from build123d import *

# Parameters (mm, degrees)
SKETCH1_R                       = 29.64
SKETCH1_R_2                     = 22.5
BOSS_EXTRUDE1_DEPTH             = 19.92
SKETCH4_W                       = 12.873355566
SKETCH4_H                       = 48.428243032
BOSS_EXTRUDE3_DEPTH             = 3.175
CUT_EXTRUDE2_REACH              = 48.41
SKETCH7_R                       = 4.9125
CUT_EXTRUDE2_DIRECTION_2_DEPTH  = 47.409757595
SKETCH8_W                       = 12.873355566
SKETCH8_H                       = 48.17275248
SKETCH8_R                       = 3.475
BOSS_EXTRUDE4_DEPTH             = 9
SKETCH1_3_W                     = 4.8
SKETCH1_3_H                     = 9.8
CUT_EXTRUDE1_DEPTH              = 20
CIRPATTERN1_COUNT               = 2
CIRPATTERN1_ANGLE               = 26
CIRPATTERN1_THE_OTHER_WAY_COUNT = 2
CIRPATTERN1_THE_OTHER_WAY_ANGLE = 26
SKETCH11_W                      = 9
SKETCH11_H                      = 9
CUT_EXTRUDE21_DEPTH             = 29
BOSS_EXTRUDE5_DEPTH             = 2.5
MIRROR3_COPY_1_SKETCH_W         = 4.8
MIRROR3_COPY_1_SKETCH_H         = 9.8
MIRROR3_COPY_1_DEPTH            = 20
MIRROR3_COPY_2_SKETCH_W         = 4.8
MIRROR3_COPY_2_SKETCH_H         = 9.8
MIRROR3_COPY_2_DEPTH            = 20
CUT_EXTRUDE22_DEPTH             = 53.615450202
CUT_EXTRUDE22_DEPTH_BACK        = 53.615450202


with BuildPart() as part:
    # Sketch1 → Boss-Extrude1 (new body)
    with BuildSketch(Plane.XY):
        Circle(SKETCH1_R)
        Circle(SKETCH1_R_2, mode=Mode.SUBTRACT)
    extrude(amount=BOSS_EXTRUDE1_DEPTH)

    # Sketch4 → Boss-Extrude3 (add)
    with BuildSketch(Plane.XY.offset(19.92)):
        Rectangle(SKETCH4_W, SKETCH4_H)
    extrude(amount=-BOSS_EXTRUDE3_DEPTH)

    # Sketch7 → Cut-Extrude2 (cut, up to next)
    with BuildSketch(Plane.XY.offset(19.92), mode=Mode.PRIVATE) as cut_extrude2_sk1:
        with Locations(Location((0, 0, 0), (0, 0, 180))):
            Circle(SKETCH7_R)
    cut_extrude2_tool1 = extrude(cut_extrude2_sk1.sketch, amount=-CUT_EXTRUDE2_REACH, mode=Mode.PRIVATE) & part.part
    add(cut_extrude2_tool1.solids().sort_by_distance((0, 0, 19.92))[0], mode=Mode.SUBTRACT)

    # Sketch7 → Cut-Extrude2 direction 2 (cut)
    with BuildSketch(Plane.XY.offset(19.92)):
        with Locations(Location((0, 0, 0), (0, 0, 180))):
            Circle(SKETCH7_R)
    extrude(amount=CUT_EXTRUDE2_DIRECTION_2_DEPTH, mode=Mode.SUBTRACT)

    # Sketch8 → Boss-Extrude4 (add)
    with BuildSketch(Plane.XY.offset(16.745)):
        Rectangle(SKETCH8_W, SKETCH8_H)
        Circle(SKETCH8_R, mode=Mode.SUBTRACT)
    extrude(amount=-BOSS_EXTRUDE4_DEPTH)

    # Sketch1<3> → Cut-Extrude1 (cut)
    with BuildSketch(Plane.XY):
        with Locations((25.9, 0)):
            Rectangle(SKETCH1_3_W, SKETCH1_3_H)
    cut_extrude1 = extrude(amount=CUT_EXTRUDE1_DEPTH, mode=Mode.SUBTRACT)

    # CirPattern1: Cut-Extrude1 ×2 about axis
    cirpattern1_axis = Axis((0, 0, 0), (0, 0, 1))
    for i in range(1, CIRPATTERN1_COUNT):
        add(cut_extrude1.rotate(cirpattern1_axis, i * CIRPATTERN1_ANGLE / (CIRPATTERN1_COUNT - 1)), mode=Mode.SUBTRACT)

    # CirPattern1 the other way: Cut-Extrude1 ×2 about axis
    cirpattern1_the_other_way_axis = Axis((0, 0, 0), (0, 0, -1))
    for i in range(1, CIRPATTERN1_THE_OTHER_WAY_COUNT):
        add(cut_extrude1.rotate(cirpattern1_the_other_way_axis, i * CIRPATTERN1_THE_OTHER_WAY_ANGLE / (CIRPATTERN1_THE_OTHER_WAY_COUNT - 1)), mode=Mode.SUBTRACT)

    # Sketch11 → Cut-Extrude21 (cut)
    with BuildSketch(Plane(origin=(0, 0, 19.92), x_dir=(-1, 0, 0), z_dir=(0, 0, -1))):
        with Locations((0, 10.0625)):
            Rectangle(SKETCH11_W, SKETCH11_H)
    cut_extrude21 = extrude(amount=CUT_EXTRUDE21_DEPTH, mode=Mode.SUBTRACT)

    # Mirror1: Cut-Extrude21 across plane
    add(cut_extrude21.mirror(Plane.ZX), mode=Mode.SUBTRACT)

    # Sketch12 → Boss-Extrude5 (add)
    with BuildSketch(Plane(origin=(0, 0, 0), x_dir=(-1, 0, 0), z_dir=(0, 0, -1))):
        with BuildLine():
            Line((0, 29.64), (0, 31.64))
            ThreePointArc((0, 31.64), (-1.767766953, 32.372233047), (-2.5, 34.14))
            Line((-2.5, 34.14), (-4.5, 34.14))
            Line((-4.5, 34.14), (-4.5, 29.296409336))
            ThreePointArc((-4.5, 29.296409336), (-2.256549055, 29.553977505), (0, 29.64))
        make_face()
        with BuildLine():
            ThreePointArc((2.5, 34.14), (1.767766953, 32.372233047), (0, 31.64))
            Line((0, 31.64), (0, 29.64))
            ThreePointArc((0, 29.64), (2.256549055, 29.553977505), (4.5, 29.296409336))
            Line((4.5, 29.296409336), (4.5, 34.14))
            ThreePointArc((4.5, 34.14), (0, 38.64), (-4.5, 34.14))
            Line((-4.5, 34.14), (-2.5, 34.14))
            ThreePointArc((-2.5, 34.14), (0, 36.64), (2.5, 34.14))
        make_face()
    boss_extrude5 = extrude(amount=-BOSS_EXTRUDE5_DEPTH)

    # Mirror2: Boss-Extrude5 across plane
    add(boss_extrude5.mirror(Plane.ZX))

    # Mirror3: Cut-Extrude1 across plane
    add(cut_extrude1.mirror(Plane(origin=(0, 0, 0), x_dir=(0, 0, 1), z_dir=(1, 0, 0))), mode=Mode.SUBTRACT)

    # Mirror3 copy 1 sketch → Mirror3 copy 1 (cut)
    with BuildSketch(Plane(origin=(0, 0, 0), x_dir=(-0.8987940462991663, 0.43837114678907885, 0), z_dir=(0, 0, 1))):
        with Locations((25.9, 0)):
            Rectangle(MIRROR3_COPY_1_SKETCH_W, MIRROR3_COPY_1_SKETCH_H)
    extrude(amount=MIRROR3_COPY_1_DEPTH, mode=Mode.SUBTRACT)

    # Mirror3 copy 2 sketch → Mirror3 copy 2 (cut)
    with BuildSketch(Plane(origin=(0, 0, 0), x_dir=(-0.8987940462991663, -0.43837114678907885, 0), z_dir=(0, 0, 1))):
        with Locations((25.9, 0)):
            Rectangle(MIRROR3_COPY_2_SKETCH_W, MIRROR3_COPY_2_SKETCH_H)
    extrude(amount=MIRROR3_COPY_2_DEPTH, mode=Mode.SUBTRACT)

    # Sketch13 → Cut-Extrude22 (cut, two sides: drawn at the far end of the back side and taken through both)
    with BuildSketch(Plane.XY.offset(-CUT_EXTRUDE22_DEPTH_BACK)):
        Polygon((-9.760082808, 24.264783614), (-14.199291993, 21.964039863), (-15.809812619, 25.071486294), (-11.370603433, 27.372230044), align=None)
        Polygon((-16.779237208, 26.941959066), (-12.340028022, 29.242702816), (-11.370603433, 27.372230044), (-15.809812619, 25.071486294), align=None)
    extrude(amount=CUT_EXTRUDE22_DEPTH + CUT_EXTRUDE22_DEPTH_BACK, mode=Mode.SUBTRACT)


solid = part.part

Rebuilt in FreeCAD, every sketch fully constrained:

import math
import FreeCAD as App
import Part
import Sketcher

V = App.Vector
Q = App.Units.Quantity

doc = App.newDocument("Part")
params = doc.addObject("Spreadsheet::Sheet", "Params")
for row, (alias, value) in enumerate([
    ("sketch1_diameter", "45 mm"),
    ("sketch1_diameter2", "59.28 mm"),
    ("pad1_length", "19.92 mm"),
    ("pad2_length", "3.175 mm"),
    ("pocket2_length", "47.409758 mm"),
    ("sketch5_diameter", "6.95 mm"),
    ("pad3_length", "9 mm"),
    ("sketch6_width", "4.8 mm"),
    ("sketch6_height", "9.8 mm"),
    ("pocket3_length", "20 mm"),
    ("sketch7_width", "9 mm"),
    ("pocket4_length", "29 mm"),
    ("sketch8_radius", "4.5 mm"),
    ("sketch8_radius2", "2.5 mm"),
    ("sketch8_radius3", "29.64 mm"),
    ("pad4_length", "2.5 mm"),
    ("sketch9_length", "9.8 mm"),
    ("sketch9_length2", "4.8 mm"),
    ("pocket5_length", "20 mm"),
    ("sketch10_length", "9.8 mm"),
    ("sketch10_length2", "4.8 mm"),
    ("pocket6_length", "20 mm"),
    ("sketch11_length", "5 mm"),
    ("sketch11_length2", "3.5 mm"),
], start=1):
    params.set(f"A{row}", alias)
    params.set(f"B{row}", "=" + value)
    params.setAlias(f"B{row}", alias)

body = doc.addObject("PartDesign::Body", "Body")

# Sketch on XY plane
sketch1 = body.newObject("Sketcher::SketchObject", "Sketch")
sketch1.AttachmentSupport = (doc.getObject("XY_Plane"), [""])
sketch1.MapMode = "FlatFace"
sketch1.addGeometry(Part.Circle(V(0, 0, 0), V(0, 0, 1), 30), False)
sketch1.addGeometry(Part.Circle(V(0, 0, 0), V(0, 0, 1), 22), False)
sketch1.addConstraint(Sketcher.Constraint("Coincident", 0, 3, -1, 1))
sketch1.addConstraint(Sketcher.Constraint("Coincident", 1, 3, -1, 1))
sketch1.addConstraint(Sketcher.Constraint("Diameter", 1, Q("45 mm")))
sketch1.addConstraint(Sketcher.Constraint("Diameter", 0, Q("59.28 mm")))
sketch1.setExpression("Constraints[2]", "Params.sketch1_diameter")
sketch1.setExpression("Constraints[3]", "Params.sketch1_diameter2")
pad1 = body.newObject("PartDesign::Pad", "Pad")
pad1.Profile = sketch1
pad1.setExpression("Length", "Params.pad1_length")

# Sketch on XY plane
sketch2 = body.newObject("Sketcher::SketchObject", "Sketch001")
sketch2.AttachmentSupport = (doc.getObject("XY_Plane"), [""])
sketch2.MapMode = "FlatFace"
sketch2.AttachmentOffset = App.Placement(V(0, 0, 19.92), App.Rotation())
sketch2.addGeometry(Part.LineSegment(V(-6, 24, 0), V(-6, -24, 0)), False)
sketch2.addGeometry(Part.LineSegment(V(-6, -24, 0), V(6, -24, 0)), False)
sketch2.addGeometry(Part.LineSegment(V(6, -24, 0), V(6, 24, 0)), False)
sketch2.addGeometry(Part.LineSegment(V(6, 24, 0), V(-6, 24, 0)), False)
sketch2.addConstraint(Sketcher.Constraint("Coincident", 0, 2, 1, 1))
sketch2.addConstraint(Sketcher.Constraint("Coincident", 1, 2, 2, 1))
sketch2.addConstraint(Sketcher.Constraint("Coincident", 2, 2, 3, 1))
sketch2.addConstraint(Sketcher.Constraint("Coincident", 3, 2, 0, 1))
sketch2.addConstraint(Sketcher.Constraint("Vertical", 0))
sketch2.addConstraint(Sketcher.Constraint("Horizontal", 1))
sketch2.addConstraint(Sketcher.Constraint("Vertical", 2))
sketch2.addConstraint(Sketcher.Constraint("Horizontal", 3))
sketch2.addConstraint(Sketcher.Constraint("Symmetric", 0, 2, 2, 2, -1, 1))
sketch2.addConstraint(Sketcher.Constraint("DistanceX", 1, 1, 1, 2, Q("12.873356 mm")))
sketch2.addConstraint(Sketcher.Constraint("DistanceY", 0, 2, 0, 1, Q("48.428243 mm")))
pad2 = body.newObject("PartDesign::Pad", "Pad001")
pad2.Profile = sketch2
pad2.setExpression("Length", "Params.pad2_length")
pad2.Reversed = True

# Sketch on XY plane
sketch3 = body.newObject("Sketcher::SketchObject", "Sketch002")
sketch3.AttachmentSupport = (doc.getObject("XY_Plane"), [""])
sketch3.MapMode = "FlatFace"
sketch3.AttachmentOffset = App.Placement(V(0, 0, 19.92), App.Rotation())
sketch3.addGeometry(Part.Circle(V(0, 0, 0), V(0, 0, 1), 4.9), False)
sketch3.addConstraint(Sketcher.Constraint("Coincident", 0, 3, -1, 1))
sketch3.addConstraint(Sketcher.Constraint("Diameter", 0, Q("9.825 mm")))
pocket1 = body.newObject("PartDesign::Pocket", "Pocket")
pocket1.Profile = sketch3
pocket1.Type = "UpToFirst"

# Sketch on XY plane
sketch4 = body.newObject("Sketcher::SketchObject", "Sketch003")
sketch4.AttachmentSupport = (doc.getObject("XY_Plane"), [""])
sketch4.MapMode = "FlatFace"
sketch4.AttachmentOffset = App.Placement(V(0, 0, 19.92), App.Rotation())
sketch4.addGeometry(Part.Circle(V(0, 0, 0), V(0, 0, 1), 4.9), False)
sketch4.addConstraint(Sketcher.Constraint("Coincident", 0, 3, -1, 1))
sketch4.addConstraint(Sketcher.Constraint("Diameter", 0, Q("9.825 mm")))
pocket2 = body.newObject("PartDesign::Pocket", "Pocket001")
pocket2.Profile = sketch4
pocket2.setExpression("Length", "Params.pocket2_length")
pocket2.Reversed = True

# Sketch on XY plane
sketch5 = body.newObject("Sketcher::SketchObject", "Sketch004")
sketch5.AttachmentSupport = (doc.getObject("XY_Plane"), [""])
sketch5.MapMode = "FlatFace"
sketch5.AttachmentOffset = App.Placement(V(0, 0, 16.745), App.Rotation())
sketch5.addGeometry(Part.LineSegment(V(-6.4, 24.1, 0), V(-6.4, -24.1, 0)), False)
sketch5.addGeometry(Part.LineSegment(V(-6.4, -24.1, 0), V(6.4, -24.1, 0)), False)
sketch5.addGeometry(Part.LineSegment(V(6.4, -24.1, 0), V(6.4, 24.1, 0)), False)
sketch5.addGeometry(Part.LineSegment(V(6.4, 24.1, 0), V(-6.4, 24.1, 0)), False)
sketch5.addGeometry(Part.Circle(V(0, 0, 0), V(0, 0, 1), 3.5), False)
sketch5.addConstraint(Sketcher.Constraint("Coincident", 0, 2, 1, 1))
sketch5.addConstraint(Sketcher.Constraint("Coincident", 1, 2, 2, 1))
sketch5.addConstraint(Sketcher.Constraint("Coincident", 2, 2, 3, 1))
sketch5.addConstraint(Sketcher.Constraint("Coincident", 3, 2, 0, 1))
sketch5.addConstraint(Sketcher.Constraint("Vertical", 0))
sketch5.addConstraint(Sketcher.Constraint("Horizontal", 1))
sketch5.addConstraint(Sketcher.Constraint("Vertical", 2))
sketch5.addConstraint(Sketcher.Constraint("Horizontal", 3))
sketch5.addConstraint(Sketcher.Constraint("Coincident", 4, 3, -1, 1))
sketch5.addConstraint(Sketcher.Constraint("Symmetric", 0, 2, 2, 2, -1, 1))
sketch5.addConstraint(Sketcher.Constraint("Diameter", 4, Q("6.95 mm")))
sketch5.addConstraint(Sketcher.Constraint("DistanceX", 1, 1, 1, 2, Q("12.873356 mm")))
sketch5.addConstraint(Sketcher.Constraint("DistanceY", 0, 2, 0, 1, Q("48.172752 mm")))
sketch5.setExpression("Constraints[10]", "Params.sketch5_diameter")
pad3 = body.newObject("PartDesign::Pad", "Pad002")
pad3.Profile = sketch5
pad3.setExpression("Length", "Params.pad3_length")
pad3.Reversed = True

# Sketch on XY plane
sketch6 = body.newObject("Sketcher::SketchObject", "Sketch005")
sketch6.AttachmentSupport = (doc.getObject("XY_Plane"), [""])
sketch6.MapMode = "FlatFace"
sketch6.addGeometry(Part.LineSegment(V(23.5, 4.9, 0), V(23.5, -4.9, 0)), False)
sketch6.addGeometry(Part.LineSegment(V(23.5, -4.9, 0), V(28.3, -4.9, 0)), False)
sketch6.addGeometry(Part.LineSegment(V(28.3, -4.9, 0), V(28.3, 4.9, 0)), False)
sketch6.addGeometry(Part.LineSegment(V(28.3, 4.9, 0), V(23.5, 4.9, 0)), False)
sketch6.addConstraint(Sketcher.Constraint("Coincident", 0, 2, 1, 1))
sketch6.addConstraint(Sketcher.Constraint("Coincident", 1, 2, 2, 1))
sketch6.addConstraint(Sketcher.Constraint("Coincident", 2, 2, 3, 1))
sketch6.addConstraint(Sketcher.Constraint("Coincident", 3, 2, 0, 1))
sketch6.addConstraint(Sketcher.Constraint("Vertical", 0))
sketch6.addConstraint(Sketcher.Constraint("Horizontal", 1))
sketch6.addConstraint(Sketcher.Constraint("Vertical", 2))
sketch6.addConstraint(Sketcher.Constraint("Horizontal", 3))
sketch6.addConstraint(Sketcher.Constraint("DistanceX", 1, 1, 1, 2, Q("4.8 mm")))
sketch6.addConstraint(Sketcher.Constraint("DistanceY", 0, 2, 0, 1, Q("9.8 mm")))
sketch6.addConstraint(Sketcher.Constraint("DistanceX", -1, 1, 0, 2, Q("23.5 mm")))
sketch6.addConstraint(Sketcher.Constraint("DistanceY", 0, 2, -1, 1, Q("4.9 mm")))
sketch6.setExpression("Constraints[8]", "Params.sketch6_width")
sketch6.setExpression("Constraints[9]", "Params.sketch6_height")
pocket3 = body.newObject("PartDesign::Pocket", "Pocket002")
pocket3.Profile = sketch6
pocket3.setExpression("Length", "Params.pocket3_length")
pocket3.Reversed = True
doc.recompute()

polarpattern = body.newObject("PartDesign::PolarPattern", "PolarPattern")
polarpattern.Originals = [pocket3]
polarpattern.Axis = (doc.getObject("Z_Axis"), [""])
polarpattern.Angle = 26
polarpattern.Occurrences = 2
body.Tip = polarpattern
doc.recompute()

polarpattern2 = body.newObject("PartDesign::PolarPattern", "PolarPattern001")
polarpattern2.Originals = [pocket3]
polarpattern2.Axis = (doc.getObject("Z_Axis"), [""])
polarpattern2.Angle = 26
polarpattern2.Occurrences = 2
polarpattern2.Reversed = True
body.Tip = polarpattern2

# Sketch on XY plane
sketch7 = body.newObject("Sketcher::SketchObject", "Sketch006")
sketch7.AttachmentSupport = (doc.getObject("XY_Plane"), [""])
sketch7.MapMode = "FlatFace"
sketch7.AttachmentOffset = App.Placement(V(0, 0, 19.92), App.Rotation())
sketch7.addGeometry(Part.LineSegment(V(4, 15, 0), V(4, 6, 0)), False)
sketch7.addGeometry(Part.LineSegment(V(4, 6, 0), V(-4, 6, 0)), False)
sketch7.addGeometry(Part.LineSegment(V(-4, 6, 0), V(-4, 15, 0)), False)
sketch7.addGeometry(Part.LineSegment(V(-4, 15, 0), V(4, 15, 0)), False)
sketch7.addConstraint(Sketcher.Constraint("Coincident", 0, 2, 1, 1))
sketch7.addConstraint(Sketcher.Constraint("Coincident", 1, 2, 2, 1))
sketch7.addConstraint(Sketcher.Constraint("Coincident", 2, 2, 3, 1))
sketch7.addConstraint(Sketcher.Constraint("Coincident", 3, 2, 0, 1))
sketch7.addConstraint(Sketcher.Constraint("Vertical", 0))
sketch7.addConstraint(Sketcher.Constraint("Horizontal", 1))
sketch7.addConstraint(Sketcher.Constraint("Vertical", 2))
sketch7.addConstraint(Sketcher.Constraint("Horizontal", 3))
sketch7.addConstraint(Sketcher.Constraint("Equal", 3, 0))
sketch7.addConstraint(Sketcher.Constraint("DistanceX", 1, 2, 1, 1, Q("9 mm")))
sketch7.addConstraint(Sketcher.Constraint("DistanceX", -1, 1, 0, 2, Q("4.5 mm")))
sketch7.addConstraint(Sketcher.Constraint("DistanceY", -1, 1, 0, 2, Q("5.5625 mm")))
sketch7.setExpression("Constraints[9]", "Params.sketch7_width")
pocket4 = body.newObject("PartDesign::Pocket", "Pocket003")
pocket4.Profile = sketch7
pocket4.setExpression("Length", "Params.pocket4_length")
doc.recompute()

mirrored = body.newObject("PartDesign::Mirrored", "Mirrored")
mirrored.Originals = [pocket4]
mirrored.MirrorPlane = (doc.getObject("XZ_Plane"), [""])
body.Tip = mirrored

# Sketch on XY plane
sketch8 = body.newObject("Sketcher::SketchObject", "Sketch007")
sketch8.AttachmentSupport = (doc.getObject("XY_Plane"), [""])
sketch8.MapMode = "FlatFace"
sketch8.addGeometry(Part.ArcOfCircle(Part.Circle(V(0, 0, 0), V(0, 0, 1), 29.6), math.radians(81.27), math.radians(90)), False)
sketch8.addGeometry(Part.ArcOfCircle(Part.Circle(V(0, 0, 0), V(0, 0, 1), 29.6), math.radians(90), math.radians(98.73)), False)
sketch8.addGeometry(Part.LineSegment(V(-4.5, 29.3, 0), V(-4.5, 34.1, 0)), False)
sketch8.addGeometry(Part.ArcOfCircle(Part.Circle(V(0, 34.1, 0), V(0, 0, 1), 4.5), math.radians(0), math.radians(180)), False)
sketch8.addGeometry(Part.LineSegment(V(4.5, 34.1, 0), V(4.5, 29.3, 0)), False)
sketch8.addGeometry(Part.ArcOfCircle(Part.Circle(V(0, 34.1, 0), V(0, 0, 1), 2.5), math.radians(-90), math.radians(0)), False)
sketch8.addGeometry(Part.ArcOfCircle(Part.Circle(V(0, 34.1, 0), V(0, 0, 1), 2.5), math.radians(0), math.radians(180)), False)
sketch8.addGeometry(Part.ArcOfCircle(Part.Circle(V(0, 34.1, 0), V(0, 0, 1), 2.5), math.radians(180), math.radians(270)), False)
sketch8.addConstraint(Sketcher.Constraint("Tangent", 0, 2, 1, 1))
sketch8.addConstraint(Sketcher.Constraint("Coincident", 1, 2, 2, 1))
sketch8.addConstraint(Sketcher.Constraint("Tangent", 2, 2, 3, 2))
sketch8.addConstraint(Sketcher.Constraint("Tangent", 3, 1, 4, 1))
sketch8.addConstraint(Sketcher.Constraint("Coincident", 4, 2, 0, 1))
sketch8.addConstraint(Sketcher.Constraint("Tangent", 5, 2, 6, 1))
sketch8.addConstraint(Sketcher.Constraint("Tangent", 6, 2, 7, 1))
sketch8.addConstraint(Sketcher.Constraint("Tangent", 7, 2, 5, 1))
sketch8.addConstraint(Sketcher.Constraint("Vertical", 2))
sketch8.addConstraint(Sketcher.Constraint("Vertical", 4))
sketch8.addConstraint(Sketcher.Constraint("Coincident", 0, 3, -1, 1))
sketch8.addConstraint(Sketcher.Constraint("Coincident", 5, 3, 3, 3))
sketch8.addConstraint(Sketcher.Constraint("Equal", 0, 1))
sketch8.addConstraint(Sketcher.Constraint("Symmetric", 5, 2, 6, 2, -2))
sketch8.addConstraint(Sketcher.Constraint("PointOnObject", 0, 2, -2))
sketch8.addConstraint(Sketcher.Constraint("PointOnObject", 7, 2, -2))
sketch8.addConstraint(Sketcher.Constraint("Horizontal", 3, 1, 5, 2))
sketch8.addConstraint(Sketcher.Constraint("Radius", 3, Q("4.5 mm")))
sketch8.addConstraint(Sketcher.Constraint("Radius", 5, Q("2.5 mm")))
sketch8.addConstraint(Sketcher.Constraint("Radius", 0, Q("29.64 mm")))
sketch8.addConstraint(Sketcher.Constraint("DistanceY", 0, 2, 7, 2, Q("2 mm")))
sketch8.setExpression("Constraints[17]", "Params.sketch8_radius")
sketch8.setExpression("Constraints[18]", "Params.sketch8_radius2")
sketch8.setExpression("Constraints[19]", "Params.sketch8_radius3")
pad4 = body.newObject("PartDesign::Pad", "Pad003")
pad4.Profile = sketch8
pad4.setExpression("Length", "Params.pad4_length")
doc.recompute()

mirrored2 = body.newObject("PartDesign::Mirrored", "Mirrored001")
mirrored2.Originals = [pad4]
mirrored2.MirrorPlane = (doc.getObject("XZ_Plane"), [""])
body.Tip = mirrored2
doc.recompute()

mirrored3 = body.newObject("PartDesign::Mirrored", "Mirrored002")
mirrored3.Originals = [pocket3]
mirrored3.MirrorPlane = (doc.getObject("YZ_Plane"), [""])
body.Tip = mirrored3

# Sketch on XY plane
sketch9 = body.newObject("Sketcher::SketchObject", "Sketch008")
sketch9.AttachmentSupport = (doc.getObject("XY_Plane"), [""])
sketch9.MapMode = "FlatFace"
sketch9.addGeometry(Part.LineSegment(V(-23.3, 5.9, 0), V(-19, 14.7, 0)), False)
sketch9.addGeometry(Part.LineSegment(V(-19, 14.7, 0), V(-23.3, 16.8, 0)), False)
sketch9.addGeometry(Part.LineSegment(V(-23.3, 16.8, 0), V(-27.6, 8, 0)), False)
sketch9.addGeometry(Part.LineSegment(V(-27.6, 8, 0), V(-23.3, 5.9, 0)), False)
sketch9.addConstraint(Sketcher.Constraint("Coincident", 0, 2, 1, 1))
sketch9.addConstraint(Sketcher.Constraint("Coincident", 1, 2, 2, 1))
sketch9.addConstraint(Sketcher.Constraint("Coincident", 2, 2, 3, 1))
sketch9.addConstraint(Sketcher.Constraint("Coincident", 3, 2, 0, 1))
sketch9.addConstraint(Sketcher.Constraint("Perpendicular", 0, 1))
sketch9.addConstraint(Sketcher.Constraint("Perpendicular", 1, 2))
sketch9.addConstraint(Sketcher.Constraint("Perpendicular", 2, 3))
sketch9.addConstraint(Sketcher.Constraint("Angle", 0, Q("64 deg")))
sketch9.addConstraint(Sketcher.Constraint("Distance", 0, Q("9.8 mm")))
sketch9.addConstraint(Sketcher.Constraint("Distance", 1, Q("4.8 mm")))
sketch9.addConstraint(Sketcher.Constraint("DistanceX", 0, 2, -1, 1, Q("18.973641 mm")))
sketch9.addConstraint(Sketcher.Constraint("DistanceY", -1, 1, 3, 2, Q("5.897631 mm")))
sketch9.setExpression("Constraints[8]", "Params.sketch9_length")
sketch9.setExpression("Constraints[9]", "Params.sketch9_length2")
pocket5 = body.newObject("PartDesign::Pocket", "Pocket004")
pocket5.Profile = sketch9
pocket5.setExpression("Length", "Params.pocket5_length")
pocket5.Reversed = True

# Sketch on XY plane
sketch10 = body.newObject("Sketcher::SketchObject", "Sketch009")
sketch10.AttachmentSupport = (doc.getObject("XY_Plane"), [""])
sketch10.MapMode = "FlatFace"
sketch10.addGeometry(Part.LineSegment(V(-19, -14.7, 0), V(-23.3, -5.9, 0)), False)
sketch10.addGeometry(Part.LineSegment(V(-23.3, -5.9, 0), V(-27.6, -8, 0)), False)
sketch10.addGeometry(Part.LineSegment(V(-27.6, -8, 0), V(-23.3, -16.8, 0)), False)
sketch10.addGeometry(Part.LineSegment(V(-23.3, -16.8, 0), V(-19, -14.7, 0)), False)
sketch10.addConstraint(Sketcher.Constraint("Coincident", 0, 2, 1, 1))
sketch10.addConstraint(Sketcher.Constraint("Coincident", 1, 2, 2, 1))
sketch10.addConstraint(Sketcher.Constraint("Coincident", 2, 2, 3, 1))
sketch10.addConstraint(Sketcher.Constraint("Coincident", 3, 2, 0, 1))
sketch10.addConstraint(Sketcher.Constraint("Perpendicular", 0, 1))
sketch10.addConstraint(Sketcher.Constraint("Perpendicular", 1, 2))
sketch10.addConstraint(Sketcher.Constraint("Perpendicular", 2, 3))
sketch10.addConstraint(Sketcher.Constraint("Angle", 0, Q("116 deg")))
sketch10.addConstraint(Sketcher.Constraint("Distance", 0, Q("9.8 mm")))
sketch10.addConstraint(Sketcher.Constraint("Distance", 1, Q("4.8 mm")))
sketch10.addConstraint(Sketcher.Constraint("DistanceX", 0, 2, -1, 1, Q("23.269679 mm")))
sketch10.addConstraint(Sketcher.Constraint("DistanceY", 0, 2, -1, 1, Q("5.897631 mm")))
sketch10.setExpression("Constraints[8]", "Params.sketch10_length")
sketch10.setExpression("Constraints[9]", "Params.sketch10_length2")
pocket6 = body.newObject("PartDesign::Pocket", "Pocket005")
pocket6.Profile = sketch10
pocket6.setExpression("Length", "Params.pocket6_length")
pocket6.Reversed = True

# Sketch on XY plane
sketch11 = body.newObject("Sketcher::SketchObject", "Sketch010")
sketch11.AttachmentSupport = (doc.getObject("XY_Plane"), [""])
sketch11.MapMode = "FlatFace"
sketch11.addGeometry(Part.LineSegment(V(-14.2, 22, 0), V(-9.8, 24.3, 0)), False)
sketch11.addGeometry(Part.LineSegment(V(-9.8, 24.3, 0), V(-11.4, 27.4, 0)), False)
sketch11.addGeometry(Part.LineSegment(V(-11.4, 27.4, 0), V(-12.3, 29.2, 0)), False)
sketch11.addGeometry(Part.LineSegment(V(-12.3, 29.2, 0), V(-16.8, 26.9, 0)), False)
sketch11.addGeometry(Part.LineSegment(V(-16.8, 26.9, 0), V(-15.8, 25.1, 0)), False)
sketch11.addGeometry(Part.LineSegment(V(-15.8, 25.1, 0), V(-14.2, 22, 0)), False)
sketch11.addConstraint(Sketcher.Constraint("Coincident", 0, 2, 1, 1))
sketch11.addConstraint(Sketcher.Constraint("Coincident", 1, 2, 2, 1))
sketch11.addConstraint(Sketcher.Constraint("Coincident", 2, 2, 3, 1))
sketch11.addConstraint(Sketcher.Constraint("Coincident", 3, 2, 4, 1))
sketch11.addConstraint(Sketcher.Constraint("Coincident", 4, 2, 5, 1))
sketch11.addConstraint(Sketcher.Constraint("Coincident", 5, 2, 0, 1))
sketch11.addConstraint(Sketcher.Constraint("Perpendicular", 0, 1))
sketch11.addConstraint(Sketcher.Constraint("Parallel", 1, 2))
sketch11.addConstraint(Sketcher.Constraint("Perpendicular", 2, 3))
sketch11.addConstraint(Sketcher.Constraint("Perpendicular", 3, 4))
sketch11.addConstraint(Sketcher.Constraint("Parallel", 4, 5))
sketch11.addConstraint(Sketcher.Constraint("Equal", 2, 4))
sketch11.addConstraint(Sketcher.Constraint("Distance", 0, Q("5 mm")))
sketch11.addConstraint(Sketcher.Constraint("Distance", 1, Q("3.5 mm")))
sketch11.addConstraint(Sketcher.Constraint("DistanceY", -1, 1, 1, 2, Q("27.37223 mm")))
sketch11.addConstraint(Sketcher.Constraint("DistanceX", 2, 2, -1, 1, Q("12.340028 mm")))
sketch11.addConstraint(Sketcher.Constraint("DistanceY", -1, 1, 3, 2, Q("26.941959 mm")))
sketch11.addConstraint(Sketcher.Constraint("DistanceX", 5, 2, -1, 1, Q("14.199292 mm")))
sketch11.setExpression("Constraints[12]", "Params.sketch11_length")
sketch11.setExpression("Constraints[13]", "Params.sketch11_length2")
pocket7 = body.newObject("PartDesign::Pocket", "Pocket006")
pocket7.Profile = sketch11
pocket7.Type = "ThroughAll"
pocket7.Midplane = True

doc.recompute()
